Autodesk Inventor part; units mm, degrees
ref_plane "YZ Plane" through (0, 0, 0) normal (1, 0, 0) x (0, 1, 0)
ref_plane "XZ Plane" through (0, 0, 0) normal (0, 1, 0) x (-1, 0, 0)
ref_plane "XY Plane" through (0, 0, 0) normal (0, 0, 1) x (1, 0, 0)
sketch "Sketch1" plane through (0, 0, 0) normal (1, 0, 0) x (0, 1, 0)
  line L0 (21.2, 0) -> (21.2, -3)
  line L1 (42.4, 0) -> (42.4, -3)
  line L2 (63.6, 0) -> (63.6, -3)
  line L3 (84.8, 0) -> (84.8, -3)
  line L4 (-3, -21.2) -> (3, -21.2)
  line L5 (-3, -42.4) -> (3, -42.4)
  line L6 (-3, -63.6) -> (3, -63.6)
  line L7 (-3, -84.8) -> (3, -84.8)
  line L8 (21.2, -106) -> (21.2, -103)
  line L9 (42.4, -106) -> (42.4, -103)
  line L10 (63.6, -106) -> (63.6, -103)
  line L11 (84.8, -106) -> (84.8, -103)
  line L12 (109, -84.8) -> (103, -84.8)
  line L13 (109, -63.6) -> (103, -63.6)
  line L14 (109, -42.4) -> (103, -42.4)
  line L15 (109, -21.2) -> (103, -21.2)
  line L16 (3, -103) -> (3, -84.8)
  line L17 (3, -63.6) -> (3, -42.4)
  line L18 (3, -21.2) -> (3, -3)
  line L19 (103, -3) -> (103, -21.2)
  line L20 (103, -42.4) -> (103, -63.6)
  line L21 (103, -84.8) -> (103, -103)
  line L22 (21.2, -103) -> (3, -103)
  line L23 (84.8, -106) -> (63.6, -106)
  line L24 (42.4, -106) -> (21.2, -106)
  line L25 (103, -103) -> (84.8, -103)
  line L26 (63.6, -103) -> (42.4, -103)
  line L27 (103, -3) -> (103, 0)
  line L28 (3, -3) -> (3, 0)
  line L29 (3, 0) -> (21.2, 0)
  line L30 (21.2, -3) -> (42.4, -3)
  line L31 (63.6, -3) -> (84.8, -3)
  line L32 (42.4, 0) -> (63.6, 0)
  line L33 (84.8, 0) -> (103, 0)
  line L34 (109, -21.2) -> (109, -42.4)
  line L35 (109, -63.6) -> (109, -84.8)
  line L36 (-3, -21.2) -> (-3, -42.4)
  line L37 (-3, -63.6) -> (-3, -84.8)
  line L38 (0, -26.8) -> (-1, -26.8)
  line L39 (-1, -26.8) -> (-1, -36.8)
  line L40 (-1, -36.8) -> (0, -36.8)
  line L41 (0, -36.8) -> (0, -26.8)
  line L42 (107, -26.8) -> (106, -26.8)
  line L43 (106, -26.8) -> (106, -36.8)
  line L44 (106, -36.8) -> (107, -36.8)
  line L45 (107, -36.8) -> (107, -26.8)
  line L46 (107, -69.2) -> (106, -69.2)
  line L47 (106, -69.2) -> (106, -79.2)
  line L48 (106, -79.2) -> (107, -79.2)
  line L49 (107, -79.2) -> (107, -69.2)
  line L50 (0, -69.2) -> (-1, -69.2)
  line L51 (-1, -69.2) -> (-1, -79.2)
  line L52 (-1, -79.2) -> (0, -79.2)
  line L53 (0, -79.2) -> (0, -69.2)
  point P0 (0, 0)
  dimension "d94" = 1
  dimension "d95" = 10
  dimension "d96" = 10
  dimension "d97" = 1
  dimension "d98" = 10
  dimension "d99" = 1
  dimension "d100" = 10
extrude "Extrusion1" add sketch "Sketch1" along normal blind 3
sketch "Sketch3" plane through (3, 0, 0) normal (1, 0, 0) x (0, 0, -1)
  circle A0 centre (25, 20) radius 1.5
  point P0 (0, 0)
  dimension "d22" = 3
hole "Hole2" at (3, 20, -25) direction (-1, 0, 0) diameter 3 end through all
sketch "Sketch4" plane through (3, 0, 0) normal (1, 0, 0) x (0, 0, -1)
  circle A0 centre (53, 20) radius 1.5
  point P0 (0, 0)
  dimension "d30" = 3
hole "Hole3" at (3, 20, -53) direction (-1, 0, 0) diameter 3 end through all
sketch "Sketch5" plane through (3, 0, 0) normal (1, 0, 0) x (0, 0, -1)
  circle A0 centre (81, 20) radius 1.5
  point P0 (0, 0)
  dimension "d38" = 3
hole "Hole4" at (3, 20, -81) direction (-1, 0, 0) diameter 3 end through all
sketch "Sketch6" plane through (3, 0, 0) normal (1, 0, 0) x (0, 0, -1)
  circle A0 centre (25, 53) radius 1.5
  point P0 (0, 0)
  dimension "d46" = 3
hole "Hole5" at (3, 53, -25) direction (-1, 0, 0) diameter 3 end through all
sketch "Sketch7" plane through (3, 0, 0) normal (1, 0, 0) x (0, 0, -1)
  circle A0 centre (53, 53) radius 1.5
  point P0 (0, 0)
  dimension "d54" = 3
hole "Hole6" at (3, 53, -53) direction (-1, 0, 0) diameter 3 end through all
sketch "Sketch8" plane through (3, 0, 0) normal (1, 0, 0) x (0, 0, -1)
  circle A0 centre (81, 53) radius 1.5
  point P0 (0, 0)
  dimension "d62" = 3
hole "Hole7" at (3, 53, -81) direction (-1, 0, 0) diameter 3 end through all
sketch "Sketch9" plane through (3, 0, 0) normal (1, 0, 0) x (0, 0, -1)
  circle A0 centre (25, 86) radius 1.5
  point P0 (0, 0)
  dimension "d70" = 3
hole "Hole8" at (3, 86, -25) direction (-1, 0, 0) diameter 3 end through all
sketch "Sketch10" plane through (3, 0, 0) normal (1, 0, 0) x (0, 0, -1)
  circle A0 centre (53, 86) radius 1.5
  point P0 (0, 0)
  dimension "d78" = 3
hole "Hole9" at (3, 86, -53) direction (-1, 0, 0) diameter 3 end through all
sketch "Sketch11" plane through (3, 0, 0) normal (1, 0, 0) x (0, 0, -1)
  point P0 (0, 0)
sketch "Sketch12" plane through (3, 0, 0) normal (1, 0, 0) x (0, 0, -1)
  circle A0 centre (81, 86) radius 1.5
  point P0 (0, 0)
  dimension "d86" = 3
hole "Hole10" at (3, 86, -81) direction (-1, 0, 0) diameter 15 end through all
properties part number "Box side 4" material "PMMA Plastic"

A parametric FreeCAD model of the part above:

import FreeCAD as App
import Part
import Sketcher
from FreeCAD import Vector


def add_polygon(sketch, points):
    """Adds a closed chain of lines whose ends are joined by coincident constraints."""
    first, n = sketch.GeometryCount, len(points)
    for a, b in zip(points, points[1:] + points[:1]):
        sketch.addGeometry(Part.LineSegment(App.Vector(*a, 0), App.Vector(*b, 0)), False)
    for i in range(n):
        sketch.addConstraint(Sketcher.Constraint("Coincident", first + i, 2, first + (i + 1) % n, 1))

doc = App.newDocument("Part")
params = doc.addObject("Spreadsheet::Sheet", "Params")
for row, (alias, value) in enumerate([
    ("sketch1_width", "1 mm"),
    ("sketch1_height", "10 mm"),
    ("sketch1_width2", "6 mm"),
    ("sketch1_height2", "3 mm"),
    ("sketch1_width3", "18.2 mm"),
    ("pad1_length", "3 mm"),
    ("sketch2_diameter", "3 mm"),
    ("hole_diameter", "3 mm"),
    ("sketch3_diameter", "3 mm"),
    ("hole2_diameter", "3 mm"),
    ("sketch4_diameter", "3 mm"),
    ("hole3_diameter", "3 mm"),
    ("sketch5_diameter", "3 mm"),
    ("hole4_diameter", "3 mm"),
    ("sketch6_diameter", "3 mm"),
    ("hole5_diameter", "3 mm"),
    ("sketch7_diameter", "3 mm"),
    ("hole6_diameter", "3 mm"),
    ("sketch8_diameter", "3 mm"),
    ("hole7_diameter", "3 mm"),
    ("sketch9_diameter", "3 mm"),
    ("hole8_diameter", "3 mm"),
    ("sketch10_diameter", "15 mm"),
    ("hole9_diameter", "15 mm"),
], start=1):
    params.set(f"A{row}", alias)
    params.set(f"B{row}", "=" + value)
    params.setAlias(f"B{row}", alias)

body = doc.addObject("PartDesign::Body", "Body")

# Sketch on YZ plane
sketch1 = body.newObject("Sketcher::SketchObject", "Sketch")
sketch1.AttachmentSupport = (doc.getObject("YZ_Plane"), [""])
sketch1.MapMode = "FlatFace"
add_polygon(sketch1, [(21.2, -3), (21.2, 0), (3, 0), (3, -21.2), (-3, -21.2), (-3, -42.4), (3, -42.4), (3, -63.6), (-3, -63.6), (-3, -84.8), (3, -84.8), (3, -103), (21.2, -103), (21.2, -106), (42.4, -106), (42.4, -103), (63.6, -103), (63.6, -106), (84.8, -106), (84.8, -103), (103, -103), (103, -84.8), (109, -84.8), (109, -63.6), (103, -63.6), (103, -42.4), (109, -42.4), (109, -21.2), (103, -21.2), (103, 0), (84.8, 0), (84.8, -3), (63.6, -3), (63.6, 0), (42.4, 0), (42.4, -3)])  # lines 0-35
add_polygon(sketch1, [(-1, -69.2), (0, -69.2), (0, -79.2), (-1, -79.2)])  # lines 36-39
add_polygon(sketch1, [(106, -69.2), (107, -69.2), (107, -79.2), (106, -79.2)])  # lines 40-43
add_polygon(sketch1, [(-1, -26.8), (0, -26.8), (0, -36.8), (-1, -36.8)])  # lines 44-47
add_polygon(sketch1, [(106, -26.8), (107, -26.8), (107, -36.8), (106, -36.8)])  # lines 48-51
sketch1.addConstraint([
    Sketcher.Constraint("Vertical", 0),
    Sketcher.Constraint("Horizontal", 1),
    Sketcher.Constraint("Vertical", 2),
    Sketcher.Constraint("Horizontal", 3),
    Sketcher.Constraint("Vertical", 4),
    Sketcher.Constraint("Horizontal", 5),
    Sketcher.Constraint("Vertical", 6),
    Sketcher.Constraint("Horizontal", 7),
    Sketcher.Constraint("Vertical", 8),
    Sketcher.Constraint("Horizontal", 9),
    Sketcher.Constraint("Vertical", 10),
    Sketcher.Constraint("Horizontal", 11),
    Sketcher.Constraint("Vertical", 12),
    Sketcher.Constraint("Horizontal", 13),
    Sketcher.Constraint("Vertical", 14),
    Sketcher.Constraint("Horizontal", 15),
    Sketcher.Constraint("Vertical", 16),
    Sketcher.Constraint("Horizontal", 17),
    Sketcher.Constraint("Vertical", 18),
    Sketcher.Constraint("Horizontal", 19),
    Sketcher.Constraint("Vertical", 20),
    Sketcher.Constraint("Horizontal", 21),
    Sketcher.Constraint("Vertical", 22),
    Sketcher.Constraint("Horizontal", 23),
    Sketcher.Constraint("Vertical", 24),
    Sketcher.Constraint("Horizontal", 25),
    Sketcher.Constraint("Vertical", 26),
    Sketcher.Constraint("Horizontal", 27),
    Sketcher.Constraint("Vertical", 28),
    Sketcher.Constraint("Horizontal", 29),
    Sketcher.Constraint("Vertical", 30),
    Sketcher.Constraint("Horizontal", 31),
    Sketcher.Constraint("Vertical", 32),
    Sketcher.Constraint("Horizontal", 33),
    Sketcher.Constraint("Vertical", 34),
    Sketcher.Constraint("Horizontal", 35),
    Sketcher.Constraint("Horizontal", 36),
    Sketcher.Constraint("Vertical", 37),
    Sketcher.Constraint("Horizontal", 38),
    Sketcher.Constraint("Vertical", 39),
    Sketcher.Constraint("Horizontal", 40),
    Sketcher.Constraint("Vertical", 41),
    Sketcher.Constraint("Horizontal", 42),
    Sketcher.Constraint("Vertical", 43),
    Sketcher.Constraint("Horizontal", 44),
    Sketcher.Constraint("Vertical", 45),
    Sketcher.Constraint("Horizontal", 46),
    Sketcher.Constraint("Vertical", 47),
    Sketcher.Constraint("Horizontal", 48),
    Sketcher.Constraint("Vertical", 49),
    Sketcher.Constraint("Horizontal", 50),
    Sketcher.Constraint("Vertical", 51),
    Sketcher.Constraint("PointOnObject", 0, 2, -1),
    Sketcher.Constraint("PointOnObject", 28, 2, -1),
    Sketcher.Constraint("PointOnObject", 32, 2, -1),
    Sketcher.Constraint("PointOnObject", 36, 2, -2),
    Sketcher.Constraint("PointOnObject", 44, 2, -2),
    Sketcher.Constraint("Horizontal", 11, 2, 14, 2),
    Sketcher.Constraint("Horizontal", 13, 2, 16, 2),
    Sketcher.Constraint("Horizontal", 15, 2, 18, 2),
    Sketcher.Constraint("Horizontal", 9, 2, 20, 2),
    Sketcher.Constraint("Horizontal", 7, 2, 22, 2),
    Sketcher.Constraint("Horizontal", 5, 2, 24, 2),
    Sketcher.Constraint("Horizontal", 3, 2, 26, 2),
    Sketcher.Constraint("Horizontal", 31, 2, 34, 2),
    Sketcher.Constraint("Horizontal", 39, 2, 40, 2),
    Sketcher.Constraint("Horizontal", 38, 2, 41, 2),
    Sketcher.Constraint("Horizontal", 47, 2, 48, 2),
    Sketcher.Constraint("Horizontal", 46, 2, 49, 2),
    Sketcher.Constraint("Vertical", 2, 2, 5, 2),
    Sketcher.Constraint("Vertical", 4, 2, 7, 2),
    Sketcher.Constraint("Vertical", 6, 2, 9, 2),
    Sketcher.Constraint("Vertical", 0, 2, 11, 2),
    Sketcher.Constraint("Vertical", 20, 2, 23, 2),
    Sketcher.Constraint("Vertical", 22, 2, 25, 2),
    Sketcher.Constraint("Vertical", 24, 2, 27, 2),
    Sketcher.Constraint("Vertical", 18, 2, 29, 2),
    Sketcher.Constraint("Vertical", 16, 2, 31, 2),
    Sketcher.Constraint("Vertical", 14, 2, 33, 2),
    Sketcher.Constraint("Vertical", 39, 2, 46, 2),
    Sketcher.Constraint("Vertical", 41, 2, 48, 2),
    Sketcher.Constraint("Vertical", 43, 2, 50, 2),
    Sketcher.Constraint("Equal", 13, 15),
    Sketcher.Constraint("Equal", 15, 17),
    Sketcher.Constraint("Equal", 11, 19),
    Sketcher.Constraint("Equal", 9, 21),
    Sketcher.Constraint("Equal", 38, 40),
    Sketcher.Constraint("Equal", 35, 2),
    Sketcher.Constraint("Equal", 2, 4),
    Sketcher.Constraint("Equal", 4, 6),
    Sketcher.Constraint("Equal", 6, 8),
    Sketcher.Constraint("Equal", 29, 10),
    Sketcher.Constraint("Equal", 0, 12),
    Sketcher.Constraint("Equal", 43, 45),
    Sketcher.Constraint("DistanceX", 36, 1, 36, 2, 1.0),
    Sketcher.Constraint("DistanceY", 37, 2, 37, 1, 10.0),
    Sketcher.Constraint("DistanceX", 3, 2, 3, 1, 6.0),
    Sketcher.Constraint("DistanceY", 0, 1, 0, 2, 3.0),
    Sketcher.Constraint("DistanceX", 1, 2, 1, 1, 18.2),
    Sketcher.Constraint("DistanceX", 13, 1, 13, 2, 21.2),
    Sketcher.Constraint("DistanceX", -1, 1, 1, 2, 3.0),
    Sketcher.Constraint("DistanceX", -1, 1, 40, 2, 107.0),
    Sketcher.Constraint("DistanceY", 36, 2, -1, 1, 69.2),
    Sketcher.Constraint("DistanceY", 44, 2, -1, 1, 26.8),
])
sketch1.setExpression("Constraints[146]", "Params.sketch1_width")
sketch1.setExpression("Constraints[147]", "Params.sketch1_height")
sketch1.setExpression("Constraints[148]", "Params.sketch1_width2")
sketch1.setExpression("Constraints[149]", "Params.sketch1_height2")
sketch1.setExpression("Constraints[150]", "Params.sketch1_width3")
pad1 = body.newObject("PartDesign::Pad", "Pad")
pad1.Profile = sketch1
pad1.setExpression("Length", "Params.pad1_length")

# Sketch on YZ plane
sketch2 = body.newObject("Sketcher::SketchObject", "Sketch001")
sketch2.AttachmentSupport = (doc.getObject("YZ_Plane"), [""])
sketch2.MapMode = "FlatFace"
sketch2.AttachmentOffset = App.Placement(Vector(0, 0, 3), App.Rotation())
sketch2.addGeometry(Part.Circle(Vector(20, -25, 0), Vector(0, 0, 1), 1.5), False)
sketch2.addConstraint([
    Sketcher.Constraint("Diameter", 0, 3.0),
    Sketcher.Constraint("DistanceX", -1, 1, 0, 3, 20.0),
    Sketcher.Constraint("DistanceY", 0, 3, -1, 1, 25.0),
])
sketch2.setExpression("Constraints[0]", "Params.sketch2_diameter")
doc.recompute()
hole = body.newObject("PartDesign::Hole", "Hole")
hole.Profile = sketch2
hole.ThreadType = "None"
hole.setExpression("Diameter", "Params.hole_diameter")
hole.DepthType = "ThroughAll"

# Sketch on YZ plane
sketch3 = body.newObject("Sketcher::SketchObject", "Sketch002")
sketch3.AttachmentSupport = (doc.getObject("YZ_Plane"), [""])
sketch3.MapMode = "FlatFace"
sketch3.AttachmentOffset = App.Placement(Vector(0, 0, 3), App.Rotation())
sketch3.addGeometry(Part.Circle(Vector(20, -53, 0), Vector(0, 0, 1), 1.5), False)
sketch3.addConstraint([
    Sketcher.Constraint("Diameter", 0, 3.0),
    Sketcher.Constraint("DistanceX", -1, 1, 0, 3, 20.0),
    Sketcher.Constraint("DistanceY", 0, 3, -1, 1, 53.0),
])
sketch3.setExpression("Constraints[0]", "Params.sketch3_diameter")
doc.recompute()
hole2 = body.newObject("PartDesign::Hole", "Hole001")
hole2.Profile = sketch3
hole2.ThreadType = "None"
hole2.setExpression("Diameter", "Params.hole2_diameter")
hole2.DepthType = "ThroughAll"

# Sketch on YZ plane
sketch4 = body.newObject("Sketcher::SketchObject", "Sketch003")
sketch4.AttachmentSupport = (doc.getObject("YZ_Plane"), [""])
sketch4.MapMode = "FlatFace"
sketch4.AttachmentOffset = App.Placement(Vector(0, 0, 3), App.Rotation())
sketch4.addGeometry(Part.Circle(Vector(20, -81, 0), Vector(0, 0, 1), 1.5), False)
sketch4.addConstraint([
    Sketcher.Constraint("Diameter", 0, 3.0),
    Sketcher.Constraint("DistanceX", -1, 1, 0, 3, 20.0),
    Sketcher.Constraint("DistanceY", 0, 3, -1, 1, 81.0),
])
sketch4.setExpression("Constraints[0]", "Params.sketch4_diameter")
doc.recompute()
hole3 = body.newObject("PartDesign::Hole", "Hole002")
hole3.Profile = sketch4
hole3.ThreadType = "None"
hole3.setExpression("Diameter", "Params.hole3_diameter")
hole3.DepthType = "ThroughAll"

# Sketch on YZ plane
sketch5 = body.newObject("Sketcher::SketchObject", "Sketch004")
sketch5.AttachmentSupport = (doc.getObject("YZ_Plane"), [""])
sketch5.MapMode = "FlatFace"
sketch5.AttachmentOffset = App.Placement(Vector(0, 0, 3), App.Rotation())
sketch5.addGeometry(Part.Circle(Vector(53, -25, 0), Vector(0, 0, 1), 1.5), False)
sketch5.addConstraint([
    Sketcher.Constraint("Diameter", 0, 3.0),
    Sketcher.Constraint("DistanceX", -1, 1, 0, 3, 53.0),
    Sketcher.Constraint("DistanceY", 0, 3, -1, 1, 25.0),
])
sketch5.setExpression("Constraints[0]", "Params.sketch5_diameter")
doc.recompute()
hole4 = body.newObject("PartDesign::Hole", "Hole003")
hole4.Profile = sketch5
hole4.ThreadType = "None"
hole4.setExpression("Diameter", "Params.hole4_diameter")
hole4.DepthType = "ThroughAll"

# Sketch on YZ plane
sketch6 = body.newObject("Sketcher::SketchObject", "Sketch005")
sketch6.AttachmentSupport = (doc.getObject("YZ_Plane"), [""])
sketch6.MapMode = "FlatFace"
sketch6.AttachmentOffset = App.Placement(Vector(0, 0, 3), App.Rotation())
sketch6.addGeometry(Part.Circle(Vector(53, -53, 0), Vector(0, 0, 1), 1.5), False)
sketch6.addConstraint([
    Sketcher.Constraint("Diameter", 0, 3.0),
    Sketcher.Constraint("DistanceX", -1, 1, 0, 3, 53.0),
    Sketcher.Constraint("DistanceY", 0, 3, -1, 1, 53.0),
])
sketch6.setExpression("Constraints[0]", "Params.sketch6_diameter")
doc.recompute()
hole5 = body.newObject("PartDesign::Hole", "Hole004")
hole5.Profile = sketch6
hole5.ThreadType = "None"
hole5.setExpression("Diameter", "Params.hole5_diameter")
hole5.DepthType = "ThroughAll"

# Sketch on YZ plane
sketch7 = body.newObject("Sketcher::SketchObject", "Sketch006")
sketch7.AttachmentSupport = (doc.getObject("YZ_Plane"), [""])
sketch7.MapMode = "FlatFace"
sketch7.AttachmentOffset = App.Placement(Vector(0, 0, 3), App.Rotation())
sketch7.addGeometry(Part.Circle(Vector(53, -81, 0), Vector(0, 0, 1), 1.5), False)
sketch7.addConstraint([
    Sketcher.Constraint("Diameter", 0, 3.0),
    Sketcher.Constraint("DistanceX", -1, 1, 0, 3, 53.0),
    Sketcher.Constraint("DistanceY", 0, 3, -1, 1, 81.0),
])
sketch7.setExpression("Constraints[0]", "Params.sketch7_diameter")
doc.recompute()
hole6 = body.newObject("PartDesign::Hole", "Hole005")
hole6.Profile = sketch7
hole6.ThreadType = "None"
hole6.setExpression("Diameter", "Params.hole6_diameter")
hole6.DepthType = "ThroughAll"

# Sketch on YZ plane
sketch8 = body.newObject("Sketcher::SketchObject", "Sketch007")
sketch8.AttachmentSupport = (doc.getObject("YZ_Plane"), [""])
sketch8.MapMode = "FlatFace"
sketch8.AttachmentOffset = App.Placement(Vector(0, 0, 3), App.Rotation())
sketch8.addGeometry(Part.Circle(Vector(86, -25, 0), Vector(0, 0, 1), 1.5), False)
sketch8.addConstraint([
    Sketcher.Constraint("Diameter", 0, 3.0),
    Sketcher.Constraint("DistanceX", -1, 1, 0, 3, 86.0),
    Sketcher.Constraint("DistanceY", 0, 3, -1, 1, 25.0),
])
sketch8.setExpression("Constraints[0]", "Params.sketch8_diameter")
doc.recompute()
hole7 = body.newObject("PartDesign::Hole", "Hole006")
hole7.Profile = sketch8
hole7.ThreadType = "None"
hole7.setExpression("Diameter", "Params.hole7_diameter")
hole7.DepthType = "ThroughAll"

# Sketch on YZ plane
sketch9 = body.newObject("Sketcher::SketchObject", "Sketch008")
sketch9.AttachmentSupport = (doc.getObject("YZ_Plane"), [""])
sketch9.MapMode = "FlatFace"
sketch9.AttachmentOffset = App.Placement(Vector(0, 0, 3), App.Rotation())
sketch9.addGeometry(Part.Circle(Vector(86, -53, 0), Vector(0, 0, 1), 1.5), False)
sketch9.addConstraint([
    Sketcher.Constraint("Diameter", 0, 3.0),
    Sketcher.Constraint("DistanceX", -1, 1, 0, 3, 86.0),
    Sketcher.Constraint("DistanceY", 0, 3, -1, 1, 53.0),
])
sketch9.setExpression("Constraints[0]", "Params.sketch9_diameter")
doc.recompute()
hole8 = body.newObject("PartDesign::Hole", "Hole007")
hole8.Profile = sketch9
hole8.ThreadType = "None"
hole8.setExpression("Diameter", "Params.hole8_diameter")
hole8.DepthType = "ThroughAll"

# Sketch on YZ plane
sketch10 = body.newObject("Sketcher::SketchObject", "Sketch009")
sketch10.AttachmentSupport = (doc.getObject("YZ_Plane"), [""])
sketch10.MapMode = "FlatFace"
sketch10.AttachmentOffset = App.Placement(Vector(0, 0, 3), App.Rotation())
sketch10.addGeometry(Part.Circle(Vector(86, -81, 0), Vector(0, 0, 1), 8), False)
sketch10.addConstraint([
    Sketcher.Constraint("Diameter", 0, 15.0),
    Sketcher.Constraint("DistanceX", -1, 1, 0, 3, 86.0),
    Sketcher.Constraint("DistanceY", 0, 3, -1, 1, 81.0),
])
sketch10.setExpression("Constraints[0]", "Params.sketch10_diameter")
doc.recompute()
hole9 = body.newObject("PartDesign::Hole", "Hole008")
hole9.Profile = sketch10
hole9.ThreadType = "None"
hole9.setExpression("Diameter", "Params.hole9_diameter")
hole9.DepthType = "ThroughAll"

doc.recompute()
